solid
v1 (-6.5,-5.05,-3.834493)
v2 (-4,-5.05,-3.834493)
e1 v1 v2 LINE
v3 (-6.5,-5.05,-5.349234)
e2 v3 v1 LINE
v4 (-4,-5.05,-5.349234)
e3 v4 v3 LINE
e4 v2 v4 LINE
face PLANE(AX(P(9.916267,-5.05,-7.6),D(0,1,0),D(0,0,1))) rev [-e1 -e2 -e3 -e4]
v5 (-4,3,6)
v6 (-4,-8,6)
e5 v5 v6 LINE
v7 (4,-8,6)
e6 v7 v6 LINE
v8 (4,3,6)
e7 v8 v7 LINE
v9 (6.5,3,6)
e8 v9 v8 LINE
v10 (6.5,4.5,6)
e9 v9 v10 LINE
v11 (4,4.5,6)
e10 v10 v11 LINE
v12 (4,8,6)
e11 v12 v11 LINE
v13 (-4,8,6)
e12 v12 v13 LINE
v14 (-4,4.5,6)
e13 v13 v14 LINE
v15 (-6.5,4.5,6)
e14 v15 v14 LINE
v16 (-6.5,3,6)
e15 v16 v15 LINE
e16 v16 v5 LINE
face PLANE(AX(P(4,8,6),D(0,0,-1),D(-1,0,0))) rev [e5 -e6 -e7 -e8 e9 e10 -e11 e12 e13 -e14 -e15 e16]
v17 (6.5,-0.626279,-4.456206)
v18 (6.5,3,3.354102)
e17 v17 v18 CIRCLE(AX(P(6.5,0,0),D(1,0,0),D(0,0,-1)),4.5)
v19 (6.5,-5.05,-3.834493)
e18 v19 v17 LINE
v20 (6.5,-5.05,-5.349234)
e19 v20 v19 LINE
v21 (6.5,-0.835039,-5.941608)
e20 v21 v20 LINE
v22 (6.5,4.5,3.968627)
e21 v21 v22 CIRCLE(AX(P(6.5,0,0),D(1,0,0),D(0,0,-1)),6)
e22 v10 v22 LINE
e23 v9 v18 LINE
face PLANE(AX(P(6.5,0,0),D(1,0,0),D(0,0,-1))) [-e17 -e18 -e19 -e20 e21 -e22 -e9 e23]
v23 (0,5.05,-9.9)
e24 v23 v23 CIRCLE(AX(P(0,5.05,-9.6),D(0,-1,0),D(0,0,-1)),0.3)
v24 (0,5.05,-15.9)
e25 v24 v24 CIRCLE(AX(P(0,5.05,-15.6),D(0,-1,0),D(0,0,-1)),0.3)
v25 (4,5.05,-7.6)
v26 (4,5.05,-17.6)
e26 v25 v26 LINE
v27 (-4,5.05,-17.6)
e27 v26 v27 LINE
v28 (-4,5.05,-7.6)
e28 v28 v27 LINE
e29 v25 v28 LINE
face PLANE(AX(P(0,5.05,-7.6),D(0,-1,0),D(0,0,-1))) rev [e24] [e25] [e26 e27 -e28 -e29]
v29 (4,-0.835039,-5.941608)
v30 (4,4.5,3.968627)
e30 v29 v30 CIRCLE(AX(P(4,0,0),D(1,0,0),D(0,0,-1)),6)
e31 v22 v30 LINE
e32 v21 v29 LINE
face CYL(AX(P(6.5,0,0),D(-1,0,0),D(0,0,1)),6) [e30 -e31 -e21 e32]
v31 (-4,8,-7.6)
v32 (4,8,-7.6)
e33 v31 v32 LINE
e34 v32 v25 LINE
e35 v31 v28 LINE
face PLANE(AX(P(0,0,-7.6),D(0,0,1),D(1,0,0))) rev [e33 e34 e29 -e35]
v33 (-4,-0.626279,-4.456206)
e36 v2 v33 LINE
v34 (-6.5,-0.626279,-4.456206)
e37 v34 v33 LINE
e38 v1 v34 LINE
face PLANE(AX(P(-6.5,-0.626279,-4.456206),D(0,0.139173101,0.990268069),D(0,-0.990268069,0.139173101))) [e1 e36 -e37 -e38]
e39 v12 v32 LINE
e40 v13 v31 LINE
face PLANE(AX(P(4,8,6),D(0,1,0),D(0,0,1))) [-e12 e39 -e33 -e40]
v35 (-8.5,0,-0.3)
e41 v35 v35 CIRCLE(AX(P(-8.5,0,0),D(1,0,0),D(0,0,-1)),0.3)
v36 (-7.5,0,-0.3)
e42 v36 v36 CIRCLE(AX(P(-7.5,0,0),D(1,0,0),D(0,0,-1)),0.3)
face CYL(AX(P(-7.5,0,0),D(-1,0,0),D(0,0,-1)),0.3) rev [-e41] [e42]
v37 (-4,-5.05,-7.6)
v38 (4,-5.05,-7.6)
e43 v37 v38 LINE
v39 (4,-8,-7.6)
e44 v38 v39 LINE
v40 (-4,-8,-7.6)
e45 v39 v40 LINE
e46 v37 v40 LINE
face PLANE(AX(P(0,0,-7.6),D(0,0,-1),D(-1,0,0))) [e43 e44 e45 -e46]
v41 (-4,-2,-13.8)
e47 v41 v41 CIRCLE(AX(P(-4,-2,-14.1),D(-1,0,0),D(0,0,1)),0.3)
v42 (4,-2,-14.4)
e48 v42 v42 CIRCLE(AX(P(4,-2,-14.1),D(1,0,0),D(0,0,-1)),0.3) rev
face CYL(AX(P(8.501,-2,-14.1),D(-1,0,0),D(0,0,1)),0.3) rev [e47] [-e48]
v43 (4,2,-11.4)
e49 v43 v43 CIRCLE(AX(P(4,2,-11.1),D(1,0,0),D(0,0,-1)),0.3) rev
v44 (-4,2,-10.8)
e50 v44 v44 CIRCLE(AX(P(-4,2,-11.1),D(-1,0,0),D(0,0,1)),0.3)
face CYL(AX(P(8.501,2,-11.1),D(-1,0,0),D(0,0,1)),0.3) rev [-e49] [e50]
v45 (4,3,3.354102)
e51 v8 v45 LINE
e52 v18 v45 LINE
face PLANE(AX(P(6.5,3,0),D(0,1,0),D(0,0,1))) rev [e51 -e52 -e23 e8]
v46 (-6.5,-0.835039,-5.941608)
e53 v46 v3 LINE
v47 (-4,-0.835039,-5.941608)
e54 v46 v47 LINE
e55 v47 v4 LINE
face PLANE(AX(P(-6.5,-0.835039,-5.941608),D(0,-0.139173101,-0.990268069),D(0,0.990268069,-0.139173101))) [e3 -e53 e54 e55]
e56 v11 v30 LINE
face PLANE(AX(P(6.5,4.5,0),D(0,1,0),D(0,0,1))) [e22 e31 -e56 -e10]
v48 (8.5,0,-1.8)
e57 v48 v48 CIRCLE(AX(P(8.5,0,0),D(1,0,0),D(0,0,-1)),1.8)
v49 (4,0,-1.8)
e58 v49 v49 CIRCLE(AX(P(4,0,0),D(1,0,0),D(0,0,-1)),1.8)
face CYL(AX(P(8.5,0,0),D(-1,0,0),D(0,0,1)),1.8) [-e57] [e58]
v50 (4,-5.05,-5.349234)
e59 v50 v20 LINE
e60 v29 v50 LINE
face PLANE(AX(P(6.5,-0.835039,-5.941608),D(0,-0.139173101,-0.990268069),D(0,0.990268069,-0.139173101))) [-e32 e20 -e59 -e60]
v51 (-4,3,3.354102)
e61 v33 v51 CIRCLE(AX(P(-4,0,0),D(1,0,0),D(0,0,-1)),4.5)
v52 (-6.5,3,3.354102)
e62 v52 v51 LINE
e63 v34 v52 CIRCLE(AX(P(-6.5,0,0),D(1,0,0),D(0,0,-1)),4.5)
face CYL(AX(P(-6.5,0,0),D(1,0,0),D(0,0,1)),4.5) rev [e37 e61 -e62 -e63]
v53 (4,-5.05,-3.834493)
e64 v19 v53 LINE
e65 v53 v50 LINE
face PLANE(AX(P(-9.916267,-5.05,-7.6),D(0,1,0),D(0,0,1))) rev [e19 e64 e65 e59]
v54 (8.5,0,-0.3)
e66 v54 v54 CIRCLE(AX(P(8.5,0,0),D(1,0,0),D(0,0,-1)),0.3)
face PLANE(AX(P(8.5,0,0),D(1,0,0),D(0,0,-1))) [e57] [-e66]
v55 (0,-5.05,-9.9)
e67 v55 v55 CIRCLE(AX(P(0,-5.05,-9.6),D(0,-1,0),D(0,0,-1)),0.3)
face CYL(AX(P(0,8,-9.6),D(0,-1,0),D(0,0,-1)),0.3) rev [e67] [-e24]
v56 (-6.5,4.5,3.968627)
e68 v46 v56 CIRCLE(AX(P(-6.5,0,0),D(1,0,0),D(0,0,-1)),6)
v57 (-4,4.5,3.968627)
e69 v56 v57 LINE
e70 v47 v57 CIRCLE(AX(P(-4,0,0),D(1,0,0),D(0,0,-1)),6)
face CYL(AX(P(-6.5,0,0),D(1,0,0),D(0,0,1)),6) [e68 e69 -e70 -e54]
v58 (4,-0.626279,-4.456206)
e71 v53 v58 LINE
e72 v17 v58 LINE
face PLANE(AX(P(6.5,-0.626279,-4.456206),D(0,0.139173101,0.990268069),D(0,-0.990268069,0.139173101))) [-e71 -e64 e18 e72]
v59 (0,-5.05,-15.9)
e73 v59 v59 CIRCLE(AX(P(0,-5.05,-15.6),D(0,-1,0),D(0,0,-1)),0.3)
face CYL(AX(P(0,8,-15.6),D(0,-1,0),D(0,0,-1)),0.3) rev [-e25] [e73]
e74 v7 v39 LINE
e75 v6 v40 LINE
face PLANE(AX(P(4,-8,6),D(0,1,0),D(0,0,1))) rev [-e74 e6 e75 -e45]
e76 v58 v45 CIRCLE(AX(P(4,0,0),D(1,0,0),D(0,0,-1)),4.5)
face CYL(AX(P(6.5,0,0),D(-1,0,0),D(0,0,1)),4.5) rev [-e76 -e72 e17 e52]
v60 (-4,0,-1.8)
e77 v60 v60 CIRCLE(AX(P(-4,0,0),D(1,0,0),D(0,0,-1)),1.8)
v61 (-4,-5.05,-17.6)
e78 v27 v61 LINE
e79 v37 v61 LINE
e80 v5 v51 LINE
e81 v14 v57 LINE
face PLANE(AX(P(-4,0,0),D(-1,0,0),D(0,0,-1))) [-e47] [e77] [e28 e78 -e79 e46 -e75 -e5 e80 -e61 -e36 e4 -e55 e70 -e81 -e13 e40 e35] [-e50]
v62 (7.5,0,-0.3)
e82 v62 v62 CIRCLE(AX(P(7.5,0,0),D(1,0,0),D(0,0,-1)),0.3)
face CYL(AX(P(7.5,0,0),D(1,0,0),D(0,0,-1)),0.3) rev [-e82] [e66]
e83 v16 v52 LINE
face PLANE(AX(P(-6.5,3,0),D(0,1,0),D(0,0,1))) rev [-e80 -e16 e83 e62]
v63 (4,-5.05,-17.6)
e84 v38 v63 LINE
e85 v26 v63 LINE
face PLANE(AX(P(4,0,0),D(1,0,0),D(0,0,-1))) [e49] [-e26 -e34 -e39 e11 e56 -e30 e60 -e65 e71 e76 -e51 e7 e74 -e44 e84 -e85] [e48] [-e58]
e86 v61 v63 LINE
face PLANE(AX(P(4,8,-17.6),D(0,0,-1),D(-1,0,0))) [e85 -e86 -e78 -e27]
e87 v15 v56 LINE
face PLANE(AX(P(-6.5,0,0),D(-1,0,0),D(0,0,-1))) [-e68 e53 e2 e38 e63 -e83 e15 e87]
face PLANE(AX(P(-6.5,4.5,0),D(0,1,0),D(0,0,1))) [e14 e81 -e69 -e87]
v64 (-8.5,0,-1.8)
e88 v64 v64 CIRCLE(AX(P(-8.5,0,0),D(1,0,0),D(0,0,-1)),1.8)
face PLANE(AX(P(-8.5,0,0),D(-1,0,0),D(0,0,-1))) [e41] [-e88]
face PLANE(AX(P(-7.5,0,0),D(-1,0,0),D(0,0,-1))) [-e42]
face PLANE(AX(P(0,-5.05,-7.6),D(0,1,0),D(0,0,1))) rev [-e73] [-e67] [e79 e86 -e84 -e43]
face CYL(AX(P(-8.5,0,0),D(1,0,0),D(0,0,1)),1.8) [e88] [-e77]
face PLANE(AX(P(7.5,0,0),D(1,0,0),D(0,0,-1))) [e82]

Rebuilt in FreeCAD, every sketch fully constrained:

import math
import FreeCAD as App
import Part
import Sketcher
from FreeCAD import Vector
Q = App.Units.Quantity

doc = App.newDocument("Part")
body = doc.addObject("PartDesign::Body", "Body")

sketch1 = doc.addObject("Sketcher::SketchObject", "Sketch")
body.addObject(sketch1)
sketch1.AttachmentSupport = (doc.YZ_Plane, [""])
sketch1.MapMode = "FlatFace"
sketch1.addGeometry([
    Part.LineSegment(Vector(8, 6, 0), Vector(-8, 6, 0)),
    Part.LineSegment(Vector(-8, 6, 0), Vector(-8, -18, 0)),
    Part.LineSegment(Vector(-8, -18, 0), Vector(8, -18, 0)),
    Part.LineSegment(Vector(8, -18, 0), Vector(8, 6, 0)),
], False)
sketch1.addConstraint([
    Sketcher.Constraint("Coincident", 0, 2, 1, 1),
    Sketcher.Constraint("Coincident", 1, 2, 2, 1),
    Sketcher.Constraint("Coincident", 2, 2, 3, 1),
    Sketcher.Constraint("Coincident", 3, 2, 0, 1),
    Sketcher.Constraint("Horizontal", 0),
    Sketcher.Constraint("Vertical", 1),
    Sketcher.Constraint("Horizontal", 2),
    Sketcher.Constraint("Vertical", 3),
    Sketcher.Constraint("DistanceX", 0, 2, 0, 1, 16.0),
    Sketcher.Constraint("DistanceY", 1, 2, 1, 1, 23.6),
    Sketcher.Constraint("DistanceX", 0, 2, -1, 1, 8.0),
    Sketcher.Constraint("DistanceY", -1, 1, 0, 2, 6.0),
])
pad1 = doc.addObject("PartDesign::Pad", "Pad")
body.addObject(pad1)
pad1.Profile = sketch1
pad1.Length = 4

sketch2 = doc.addObject("Sketcher::SketchObject", "Sketch001")
body.addObject(sketch2)
sketch2.AttachmentSupport = (doc.YZ_Plane, [""])
sketch2.MapMode = "FlatFace"
sketch2.AttachmentOffset = App.Placement(Vector(0, 0, 4), App.Rotation())
sketch2.addGeometry([
    Part.ArcOfCircle(Part.Circle(Vector(0, 0, 0), Vector(0, 0, 1), 1.8), math.radians(-90), math.radians(0)),
    Part.ArcOfCircle(Part.Circle(Vector(0, 0, 0), Vector(0, 0, 1), 1.8), math.radians(0), math.radians(90)),
    Part.ArcOfCircle(Part.Circle(Vector(0, 0, 0), Vector(0, 0, 1), 1.8), math.radians(90), math.radians(180)),
    Part.ArcOfCircle(Part.Circle(Vector(0, 0, 0), Vector(0, 0, 1), 1.8), math.radians(180), math.radians(270)),
], False)
sketch2.addConstraint([
    Sketcher.Constraint("Tangent", 0, 2, 1, 1),
    Sketcher.Constraint("Tangent", 1, 2, 2, 1),
    Sketcher.Constraint("Tangent", 2, 2, 3, 1),
    Sketcher.Constraint("Tangent", 3, 2, 0, 1),
    Sketcher.Constraint("Coincident", 0, 3, -1, 1),
    Sketcher.Constraint("Equal", 0, 1),
    Sketcher.Constraint("PointOnObject", 0, 2, -1),
    Sketcher.Constraint("PointOnObject", 1, 2, -2),
    Sketcher.Constraint("PointOnObject", 2, 2, -1),
    Sketcher.Constraint("PointOnObject", 3, 2, -2),
    Sketcher.Constraint("Radius", 0, 1.8),
])
pad2 = doc.addObject("PartDesign::Pad", "Pad001")
body.addObject(pad2)
pad2.Profile = sketch2
pad2.Length = 4.5

sketch3 = doc.addObject("Sketcher::SketchObject", "Sketch002")
body.addObject(sketch3)
sketch3.AttachmentSupport = (doc.YZ_Plane, [""])
sketch3.MapMode = "FlatFace"
sketch3.AttachmentOffset = App.Placement(Vector(0, 0, 8.5), App.Rotation())
sketch3.addGeometry(Part.Circle(Vector(0, 0, 0), Vector(0, 0, 1), 0.3), False)
sketch3.addConstraint([
    Sketcher.Constraint("Coincident", 0, 3, -1, 1),
    Sketcher.Constraint("Diameter", 0, 0.6),
])
pocket1 = doc.addObject("PartDesign::Pocket", "Pocket")
body.addObject(pocket1)
pocket1.Profile = sketch3
pocket1.Length = 1

sketch4 = doc.addObject("Sketcher::SketchObject", "Sketch003")
body.addObject(sketch4)
sketch4.AttachmentSupport = (doc.YZ_Plane, [""])
sketch4.MapMode = "FlatFace"
sketch4.AttachmentOffset = App.Placement(Vector(0, 0, 4), App.Rotation())
sketch4.addGeometry([
    Part.ArcOfCircle(Part.Circle(Vector(0, 0, 0), Vector(0, 0, 1), 4.5), math.radians(0), math.radians(48)),
    Part.ArcOfCircle(Part.Circle(Vector(0, 0, 0), Vector(0, 0, 1), 4.5), math.radians(-24), math.radians(0)),
    Part.ArcOfCircle(Part.Circle(Vector(0, 0, 0), Vector(0, 0, 1), 4.5), math.radians(-90), math.radians(-24)),
    Part.ArcOfCircle(Part.Circle(Vector(0, 0, 0), Vector(0, 0, 1), 4.5), math.radians(-98), math.radians(-90)),
    Part.LineSegment(Vector(-0.63, -4.46, 0), Vector(-4.56, -3.9, 0)),
    Part.LineSegment(Vector(-4.56, -3.9, 0), Vector(-5, -3.84, 0)),
    Part.LineSegment(Vector(-5, -3.84, 0), Vector(-8, -3.42, 0)),
    Part.LineSegment(Vector(-8, -3.42, 0), Vector(-8, -4.93, 0)),
    Part.LineSegment(Vector(-8, -4.93, 0), Vector(-5, -5.36, 0)),
    Part.LineSegment(Vector(-5, -5.36, 0), Vector(-0.84, -5.94, 0)),
    Part.ArcOfCircle(Part.Circle(Vector(0, 0, 0), Vector(0, 0, 1), 6), math.radians(-98), math.radians(-90)),
    Part.ArcOfCircle(Part.Circle(Vector(0, 0, 0), Vector(0, 0, 1), 6), math.radians(-90), math.radians(-34)),
    Part.ArcOfCircle(Part.Circle(Vector(0, 0, 0), Vector(0, 0, 1), 6), math.radians(-33.56), math.radians(-17.46)),
    Part.ArcOfCircle(Part.Circle(Vector(0, 0, 0), Vector(0, 0, 1), 6), math.radians(-17), math.radians(41)),
    Part.LineSegment(Vector(4.5, 3.97, 0), Vector(4.5, 6, 0)),
    Part.LineSegment(Vector(4.5, 6, 0), Vector(3, 6, 0)),
    Part.LineSegment(Vector(3, 6, 0), Vector(3, 3.35, 0)),
], False)
sketch4.addConstraint([
    Sketcher.Constraint("Tangent", 0, 1, 1, 2),
    Sketcher.Constraint("Tangent", 1, 1, 2, 2),
    Sketcher.Constraint("Tangent", 2, 1, 3, 2),
    Sketcher.Constraint("Tangent", 3, 1, 4, 1),
    Sketcher.Constraint("Coincident", 4, 2, 5, 1),
    Sketcher.Constraint("Coincident", 5, 2, 6, 1),
    Sketcher.Constraint("Coincident", 6, 2, 7, 1),
    Sketcher.Constraint("Coincident", 7, 2, 8, 1),
    Sketcher.Constraint("Coincident", 8, 2, 9, 1),
    Sketcher.Constraint("Tangent", 9, 2, 10, 1),
    Sketcher.Constraint("Tangent", 10, 2, 11, 1),
    Sketcher.Constraint("Tangent", 11, 2, 12, 1),
    Sketcher.Constraint("Tangent", 12, 2, 13, 1),
    Sketcher.Constraint("Coincident", 13, 2, 14, 1),
    Sketcher.Constraint("Coincident", 14, 2, 15, 1),
    Sketcher.Constraint("Coincident", 15, 2, 16, 1),
    Sketcher.Constraint("Coincident", 16, 2, 0, 2),
    Sketcher.Constraint("Vertical", 7),
    Sketcher.Constraint("Vertical", 14),
    Sketcher.Constraint("Horizontal", 15),
    Sketcher.Constraint("Vertical", 16),
    Sketcher.Constraint("Coincident", 0, 3, -1, 1),
    Sketcher.Constraint("Coincident", 2, 3, -1, 1),
    Sketcher.Constraint("Coincident", 10, 3, -1, 1),
    Sketcher.Constraint("Coincident", 12, 3, -1, 1),
    Sketcher.Constraint("Equal", 2, 3),
    Sketcher.Constraint("Equal", 12, 13),
    Sketcher.Constraint("PointOnObject", 0, 1, -1),
    Sketcher.Constraint("PointOnObject", 2, 1, -2),
    Sketcher.Constraint("PointOnObject", 10, 2, -2),
    Sketcher.Constraint("Parallel", 4, 5),
    Sketcher.Constraint("Parallel", 5, 6),
    Sketcher.Constraint("Parallel", 6, 8),
    Sketcher.Constraint("Parallel", 8, 9),
    Sketcher.Constraint("Horizontal", 1, 1, 12, 2),
    Sketcher.Constraint("Vertical", 5, 2, 8, 2),
    Sketcher.Constraint("Vertical", 0, 1, 13, 2),
    Sketcher.Constraint("Radius", 10, 6.0),
    Sketcher.Constraint("Radius", 0, 4.5),
    Sketcher.Constraint("Angle", 4, Q("172 deg")),
    Sketcher.Constraint("DistanceX", 15, 2, 15, 1, 1.5),
    Sketcher.Constraint("DistanceX", 5, 2, -1, 1, 5.0),
    Sketcher.Constraint("DistanceX", 6, 2, -1, 1, 8.0),
    Sketcher.Constraint("DistanceX", -1, 1, 11, 2, 5.0),
    Sketcher.Constraint("DistanceY", -1, 1, 14, 2, 6.0),
    Sketcher.Constraint("DistanceY", 1, 1, -1, 1, 1.8),
    Sketcher.Constraint("DistanceY", 4, 2, -1, 1, 3.90388),
])
pad3 = doc.addObject("PartDesign::Pad", "Pad002")
body.addObject(pad3)
pad3.Profile = sketch4
pad3.Length = 2.5

sketch5 = doc.addObject("Sketcher::SketchObject", "Sketch004")
body.addObject(sketch5)
sketch5.AttachmentSupport = (doc.XY_Plane, [""])
sketch5.MapMode = "FlatFace"
sketch5.AttachmentOffset = App.Placement(Vector(0, 0, -17.6), App.Rotation())
sketch5.addGeometry([
    Part.LineSegment(Vector(4, 8, 0), Vector(4, 5, 0)),
    Part.LineSegment(Vector(4, 5, 0), Vector(0, 5, 0)),
    Part.LineSegment(Vector(0, 5, 0), Vector(0, 8, 0)),
    Part.LineSegment(Vector(0, 8, 0), Vector(4, 8, 0)),
    Part.LineSegment(Vector(4, -5, 0), Vector(4, -8, 0)),
    Part.LineSegment(Vector(4, -8, 0), Vector(0, -8, 0)),
    Part.LineSegment(Vector(0, -8, 0), Vector(0, -5, 0)),
    Part.LineSegment(Vector(0, -5, 0), Vector(4, -5, 0)),
], False)
sketch5.addConstraint([
    Sketcher.Constraint("Coincident", 0, 2, 1, 1),
    Sketcher.Constraint("Coincident", 1, 2, 2, 1),
    Sketcher.Constraint("Coincident", 2, 2, 3, 1),
    Sketcher.Constraint("Coincident", 3, 2, 0, 1),
    Sketcher.Constraint("Coincident", 4, 2, 5, 1),
    Sketcher.Constraint("Coincident", 5, 2, 6, 1),
    Sketcher.Constraint("Coincident", 6, 2, 7, 1),
    Sketcher.Constraint("Coincident", 7, 2, 4, 1),
    Sketcher.Constraint("Vertical", 0),
    Sketcher.Constraint("Horizontal", 1),
    Sketcher.Constraint("Vertical", 2),
    Sketcher.Constraint("Horizontal", 3),
    Sketcher.Constraint("Vertical", 4),
    Sketcher.Constraint("Horizontal", 5),
    Sketcher.Constraint("Vertical", 6),
    Sketcher.Constraint("Horizontal", 7),
    Sketcher.Constraint("Symmetric", 2, 2, 5, 2, -1, 1),
    Sketcher.Constraint("Symmetric", 1, 2, 6, 2, -1),
    Sketcher.Constraint("Vertical", 3, 2, 4, 2),
    Sketcher.Constraint("DistanceX", 1, 2, 1, 1, 4.0),
    Sketcher.Constraint("DistanceY", -1, 1, 2, 2, 8.0),
    Sketcher.Constraint("DistanceY", 0, 2, 0, 1, 2.95),
])
pocket2 = doc.addObject("PartDesign::Pocket", "Pocket001")
body.addObject(pocket2)
pocket2.Profile = sketch5
pocket2.Length = 10
pocket2.Reversed = True

sketch6 = doc.addObject("Sketcher::SketchObject", "Sketch005")
body.addObject(sketch6)
sketch6.AttachmentSupport = (doc.XZ_Plane, [""])
sketch6.MapMode = "FlatFace"
sketch6.AttachmentOffset = App.Placement(Vector(0, 0, 5.05), App.Rotation())
sketch6.addGeometry([
    Part.Circle(Vector(0, -9.6, 0), Vector(0, 0, 1), 0.3),
    Part.Circle(Vector(0, -15.6, 0), Vector(0, 0, 1), 0.3),
], False)
sketch6.addConstraint([
    Sketcher.Constraint("Equal", 0, 1),
    Sketcher.Constraint("PointOnObject", 0, 3, -2),
    Sketcher.Constraint("PointOnObject", 1, 3, -2),
    Sketcher.Constraint("Diameter", 0, 0.6),
    Sketcher.Constraint("DistanceY", 1, 3, 0, 3, 6.0),
    Sketcher.Constraint("DistanceY", 0, 3, -1, 1, 9.6),
])
pocket3 = doc.addObject("PartDesign::Pocket", "Pocket002")
body.addObject(pocket3)
pocket3.Profile = sketch6
pocket3.Type = "ThroughAll"

sketch7 = doc.addObject("Sketcher::SketchObject", "Sketch006")
body.addObject(sketch7)
sketch7.AttachmentSupport = (doc.YZ_Plane, [""])
sketch7.MapMode = "FlatFace"
sketch7.AttachmentOffset = App.Placement(Vector(0, 0, 6.5), App.Rotation())
sketch7.addGeometry([
    Part.LineSegment(Vector(-5, 6, 0), Vector(-8, 6, 0)),
    Part.LineSegment(Vector(-8, 6, 0), Vector(-8, -7.6, 0)),
    Part.LineSegment(Vector(-8, -7.6, 0), Vector(-5, -7.6, 0)),
    Part.LineSegment(Vector(-5, -7.6, 0), Vector(-5, 6, 0)),
], False)
sketch7.addConstraint([
    Sketcher.Constraint("Coincident", 0, 2, 1, 1),
    Sketcher.Constraint("Coincident", 1, 2, 2, 1),
    Sketcher.Constraint("Coincident", 2, 2, 3, 1),
    Sketcher.Constraint("Coincident", 3, 2, 0, 1),
    Sketcher.Constraint("Horizontal", 0),
    Sketcher.Constraint("Vertical", 1),
    Sketcher.Constraint("Horizontal", 2),
    Sketcher.Constraint("Vertical", 3),
    Sketcher.Constraint("DistanceY", 1, 2, 1, 1, 13.6),
    Sketcher.Constraint("DistanceX", 0, 2, -1, 1, 8.0),
    Sketcher.Constraint("DistanceY", -1, 1, 0, 2, 6.0),
    Sketcher.Constraint("DistanceX", 0, 2, 0, 1, 2.95),
])
pocket4 = doc.addObject("PartDesign::Pocket", "Pocket003")
body.addObject(pocket4)
pocket4.Profile = sketch7
pocket4.Length = 2.5
body2 = doc.addObject("PartDesign::Body", "Body001")
doc.recompute()

body2.BaseFeature = body
doc.recompute()

mirroring = doc.addObject("Part::Mirroring", "Mirroring")
mirroring.Source = body
mirroring.Base = Vector(0, 0, 0)
mirroring.Normal = Vector(1, 0, 0)
body3 = doc.addObject("PartDesign::Body", "Body002")
body3.BaseFeature = mirroring
boolean = doc.addObject("PartDesign::Boolean", "Boolean")
body2.addObject(boolean)
boolean.Type = "Fuse"
boolean.addObjects([body3])
doc.recompute()

sketch8 = doc.addObject("Sketcher::SketchObject", "Sketch007")
body2.addObject(sketch8)
sketch8.AttachmentSupport = (doc.getObject("YZ_Plane001"), [""])
sketch8.MapMode = "FlatFace"
sketch8.AttachmentOffset = App.Placement(Vector(0, 0, -4), App.Rotation())
sketch8.addGeometry(Part.Circle(Vector(-2, -14.1, 0), Vector(0, 0, 1), 0.3), False)
sketch8.addConstraint([
    Sketcher.Constraint("Diameter", 0, 0.6),
    Sketcher.Constraint("DistanceX", 0, 3, -1, 1, 2.0),
    Sketcher.Constraint("DistanceY", 0, 3, -1, 1, 14.1),
])
pocket5 = doc.addObject("PartDesign::Pocket", "Pocket004")
body2.addObject(pocket5)
pocket5.Profile = sketch8
pocket5.Type = "UpToFirst"
pocket5.Reversed = True

sketch9 = doc.addObject("Sketcher::SketchObject", "Sketch008")
body2.addObject(sketch9)
sketch9.AttachmentSupport = (doc.getObject("YZ_Plane001"), [""])
sketch9.MapMode = "FlatFace"
sketch9.AttachmentOffset = App.Placement(Vector(0, 0, -4), App.Rotation())
sketch9.addGeometry(Part.Circle(Vector(2, -11.1, 0), Vector(0, 0, 1), 0.3), False)
sketch9.addConstraint([
    Sketcher.Constraint("Diameter", 0, 0.6),
    Sketcher.Constraint("DistanceX", -1, 1, 0, 3, 2.0),
    Sketcher.Constraint("DistanceY", 0, 3, -1, 1, 11.1),
])
pocket6 = doc.addObject("PartDesign::Pocket", "Pocket005")
body2.addObject(pocket6)
pocket6.Profile = sketch9
pocket6.Type = "UpToFirst"
pocket6.Reversed = True
mirroring.Visibility = False

doc.recompute()
